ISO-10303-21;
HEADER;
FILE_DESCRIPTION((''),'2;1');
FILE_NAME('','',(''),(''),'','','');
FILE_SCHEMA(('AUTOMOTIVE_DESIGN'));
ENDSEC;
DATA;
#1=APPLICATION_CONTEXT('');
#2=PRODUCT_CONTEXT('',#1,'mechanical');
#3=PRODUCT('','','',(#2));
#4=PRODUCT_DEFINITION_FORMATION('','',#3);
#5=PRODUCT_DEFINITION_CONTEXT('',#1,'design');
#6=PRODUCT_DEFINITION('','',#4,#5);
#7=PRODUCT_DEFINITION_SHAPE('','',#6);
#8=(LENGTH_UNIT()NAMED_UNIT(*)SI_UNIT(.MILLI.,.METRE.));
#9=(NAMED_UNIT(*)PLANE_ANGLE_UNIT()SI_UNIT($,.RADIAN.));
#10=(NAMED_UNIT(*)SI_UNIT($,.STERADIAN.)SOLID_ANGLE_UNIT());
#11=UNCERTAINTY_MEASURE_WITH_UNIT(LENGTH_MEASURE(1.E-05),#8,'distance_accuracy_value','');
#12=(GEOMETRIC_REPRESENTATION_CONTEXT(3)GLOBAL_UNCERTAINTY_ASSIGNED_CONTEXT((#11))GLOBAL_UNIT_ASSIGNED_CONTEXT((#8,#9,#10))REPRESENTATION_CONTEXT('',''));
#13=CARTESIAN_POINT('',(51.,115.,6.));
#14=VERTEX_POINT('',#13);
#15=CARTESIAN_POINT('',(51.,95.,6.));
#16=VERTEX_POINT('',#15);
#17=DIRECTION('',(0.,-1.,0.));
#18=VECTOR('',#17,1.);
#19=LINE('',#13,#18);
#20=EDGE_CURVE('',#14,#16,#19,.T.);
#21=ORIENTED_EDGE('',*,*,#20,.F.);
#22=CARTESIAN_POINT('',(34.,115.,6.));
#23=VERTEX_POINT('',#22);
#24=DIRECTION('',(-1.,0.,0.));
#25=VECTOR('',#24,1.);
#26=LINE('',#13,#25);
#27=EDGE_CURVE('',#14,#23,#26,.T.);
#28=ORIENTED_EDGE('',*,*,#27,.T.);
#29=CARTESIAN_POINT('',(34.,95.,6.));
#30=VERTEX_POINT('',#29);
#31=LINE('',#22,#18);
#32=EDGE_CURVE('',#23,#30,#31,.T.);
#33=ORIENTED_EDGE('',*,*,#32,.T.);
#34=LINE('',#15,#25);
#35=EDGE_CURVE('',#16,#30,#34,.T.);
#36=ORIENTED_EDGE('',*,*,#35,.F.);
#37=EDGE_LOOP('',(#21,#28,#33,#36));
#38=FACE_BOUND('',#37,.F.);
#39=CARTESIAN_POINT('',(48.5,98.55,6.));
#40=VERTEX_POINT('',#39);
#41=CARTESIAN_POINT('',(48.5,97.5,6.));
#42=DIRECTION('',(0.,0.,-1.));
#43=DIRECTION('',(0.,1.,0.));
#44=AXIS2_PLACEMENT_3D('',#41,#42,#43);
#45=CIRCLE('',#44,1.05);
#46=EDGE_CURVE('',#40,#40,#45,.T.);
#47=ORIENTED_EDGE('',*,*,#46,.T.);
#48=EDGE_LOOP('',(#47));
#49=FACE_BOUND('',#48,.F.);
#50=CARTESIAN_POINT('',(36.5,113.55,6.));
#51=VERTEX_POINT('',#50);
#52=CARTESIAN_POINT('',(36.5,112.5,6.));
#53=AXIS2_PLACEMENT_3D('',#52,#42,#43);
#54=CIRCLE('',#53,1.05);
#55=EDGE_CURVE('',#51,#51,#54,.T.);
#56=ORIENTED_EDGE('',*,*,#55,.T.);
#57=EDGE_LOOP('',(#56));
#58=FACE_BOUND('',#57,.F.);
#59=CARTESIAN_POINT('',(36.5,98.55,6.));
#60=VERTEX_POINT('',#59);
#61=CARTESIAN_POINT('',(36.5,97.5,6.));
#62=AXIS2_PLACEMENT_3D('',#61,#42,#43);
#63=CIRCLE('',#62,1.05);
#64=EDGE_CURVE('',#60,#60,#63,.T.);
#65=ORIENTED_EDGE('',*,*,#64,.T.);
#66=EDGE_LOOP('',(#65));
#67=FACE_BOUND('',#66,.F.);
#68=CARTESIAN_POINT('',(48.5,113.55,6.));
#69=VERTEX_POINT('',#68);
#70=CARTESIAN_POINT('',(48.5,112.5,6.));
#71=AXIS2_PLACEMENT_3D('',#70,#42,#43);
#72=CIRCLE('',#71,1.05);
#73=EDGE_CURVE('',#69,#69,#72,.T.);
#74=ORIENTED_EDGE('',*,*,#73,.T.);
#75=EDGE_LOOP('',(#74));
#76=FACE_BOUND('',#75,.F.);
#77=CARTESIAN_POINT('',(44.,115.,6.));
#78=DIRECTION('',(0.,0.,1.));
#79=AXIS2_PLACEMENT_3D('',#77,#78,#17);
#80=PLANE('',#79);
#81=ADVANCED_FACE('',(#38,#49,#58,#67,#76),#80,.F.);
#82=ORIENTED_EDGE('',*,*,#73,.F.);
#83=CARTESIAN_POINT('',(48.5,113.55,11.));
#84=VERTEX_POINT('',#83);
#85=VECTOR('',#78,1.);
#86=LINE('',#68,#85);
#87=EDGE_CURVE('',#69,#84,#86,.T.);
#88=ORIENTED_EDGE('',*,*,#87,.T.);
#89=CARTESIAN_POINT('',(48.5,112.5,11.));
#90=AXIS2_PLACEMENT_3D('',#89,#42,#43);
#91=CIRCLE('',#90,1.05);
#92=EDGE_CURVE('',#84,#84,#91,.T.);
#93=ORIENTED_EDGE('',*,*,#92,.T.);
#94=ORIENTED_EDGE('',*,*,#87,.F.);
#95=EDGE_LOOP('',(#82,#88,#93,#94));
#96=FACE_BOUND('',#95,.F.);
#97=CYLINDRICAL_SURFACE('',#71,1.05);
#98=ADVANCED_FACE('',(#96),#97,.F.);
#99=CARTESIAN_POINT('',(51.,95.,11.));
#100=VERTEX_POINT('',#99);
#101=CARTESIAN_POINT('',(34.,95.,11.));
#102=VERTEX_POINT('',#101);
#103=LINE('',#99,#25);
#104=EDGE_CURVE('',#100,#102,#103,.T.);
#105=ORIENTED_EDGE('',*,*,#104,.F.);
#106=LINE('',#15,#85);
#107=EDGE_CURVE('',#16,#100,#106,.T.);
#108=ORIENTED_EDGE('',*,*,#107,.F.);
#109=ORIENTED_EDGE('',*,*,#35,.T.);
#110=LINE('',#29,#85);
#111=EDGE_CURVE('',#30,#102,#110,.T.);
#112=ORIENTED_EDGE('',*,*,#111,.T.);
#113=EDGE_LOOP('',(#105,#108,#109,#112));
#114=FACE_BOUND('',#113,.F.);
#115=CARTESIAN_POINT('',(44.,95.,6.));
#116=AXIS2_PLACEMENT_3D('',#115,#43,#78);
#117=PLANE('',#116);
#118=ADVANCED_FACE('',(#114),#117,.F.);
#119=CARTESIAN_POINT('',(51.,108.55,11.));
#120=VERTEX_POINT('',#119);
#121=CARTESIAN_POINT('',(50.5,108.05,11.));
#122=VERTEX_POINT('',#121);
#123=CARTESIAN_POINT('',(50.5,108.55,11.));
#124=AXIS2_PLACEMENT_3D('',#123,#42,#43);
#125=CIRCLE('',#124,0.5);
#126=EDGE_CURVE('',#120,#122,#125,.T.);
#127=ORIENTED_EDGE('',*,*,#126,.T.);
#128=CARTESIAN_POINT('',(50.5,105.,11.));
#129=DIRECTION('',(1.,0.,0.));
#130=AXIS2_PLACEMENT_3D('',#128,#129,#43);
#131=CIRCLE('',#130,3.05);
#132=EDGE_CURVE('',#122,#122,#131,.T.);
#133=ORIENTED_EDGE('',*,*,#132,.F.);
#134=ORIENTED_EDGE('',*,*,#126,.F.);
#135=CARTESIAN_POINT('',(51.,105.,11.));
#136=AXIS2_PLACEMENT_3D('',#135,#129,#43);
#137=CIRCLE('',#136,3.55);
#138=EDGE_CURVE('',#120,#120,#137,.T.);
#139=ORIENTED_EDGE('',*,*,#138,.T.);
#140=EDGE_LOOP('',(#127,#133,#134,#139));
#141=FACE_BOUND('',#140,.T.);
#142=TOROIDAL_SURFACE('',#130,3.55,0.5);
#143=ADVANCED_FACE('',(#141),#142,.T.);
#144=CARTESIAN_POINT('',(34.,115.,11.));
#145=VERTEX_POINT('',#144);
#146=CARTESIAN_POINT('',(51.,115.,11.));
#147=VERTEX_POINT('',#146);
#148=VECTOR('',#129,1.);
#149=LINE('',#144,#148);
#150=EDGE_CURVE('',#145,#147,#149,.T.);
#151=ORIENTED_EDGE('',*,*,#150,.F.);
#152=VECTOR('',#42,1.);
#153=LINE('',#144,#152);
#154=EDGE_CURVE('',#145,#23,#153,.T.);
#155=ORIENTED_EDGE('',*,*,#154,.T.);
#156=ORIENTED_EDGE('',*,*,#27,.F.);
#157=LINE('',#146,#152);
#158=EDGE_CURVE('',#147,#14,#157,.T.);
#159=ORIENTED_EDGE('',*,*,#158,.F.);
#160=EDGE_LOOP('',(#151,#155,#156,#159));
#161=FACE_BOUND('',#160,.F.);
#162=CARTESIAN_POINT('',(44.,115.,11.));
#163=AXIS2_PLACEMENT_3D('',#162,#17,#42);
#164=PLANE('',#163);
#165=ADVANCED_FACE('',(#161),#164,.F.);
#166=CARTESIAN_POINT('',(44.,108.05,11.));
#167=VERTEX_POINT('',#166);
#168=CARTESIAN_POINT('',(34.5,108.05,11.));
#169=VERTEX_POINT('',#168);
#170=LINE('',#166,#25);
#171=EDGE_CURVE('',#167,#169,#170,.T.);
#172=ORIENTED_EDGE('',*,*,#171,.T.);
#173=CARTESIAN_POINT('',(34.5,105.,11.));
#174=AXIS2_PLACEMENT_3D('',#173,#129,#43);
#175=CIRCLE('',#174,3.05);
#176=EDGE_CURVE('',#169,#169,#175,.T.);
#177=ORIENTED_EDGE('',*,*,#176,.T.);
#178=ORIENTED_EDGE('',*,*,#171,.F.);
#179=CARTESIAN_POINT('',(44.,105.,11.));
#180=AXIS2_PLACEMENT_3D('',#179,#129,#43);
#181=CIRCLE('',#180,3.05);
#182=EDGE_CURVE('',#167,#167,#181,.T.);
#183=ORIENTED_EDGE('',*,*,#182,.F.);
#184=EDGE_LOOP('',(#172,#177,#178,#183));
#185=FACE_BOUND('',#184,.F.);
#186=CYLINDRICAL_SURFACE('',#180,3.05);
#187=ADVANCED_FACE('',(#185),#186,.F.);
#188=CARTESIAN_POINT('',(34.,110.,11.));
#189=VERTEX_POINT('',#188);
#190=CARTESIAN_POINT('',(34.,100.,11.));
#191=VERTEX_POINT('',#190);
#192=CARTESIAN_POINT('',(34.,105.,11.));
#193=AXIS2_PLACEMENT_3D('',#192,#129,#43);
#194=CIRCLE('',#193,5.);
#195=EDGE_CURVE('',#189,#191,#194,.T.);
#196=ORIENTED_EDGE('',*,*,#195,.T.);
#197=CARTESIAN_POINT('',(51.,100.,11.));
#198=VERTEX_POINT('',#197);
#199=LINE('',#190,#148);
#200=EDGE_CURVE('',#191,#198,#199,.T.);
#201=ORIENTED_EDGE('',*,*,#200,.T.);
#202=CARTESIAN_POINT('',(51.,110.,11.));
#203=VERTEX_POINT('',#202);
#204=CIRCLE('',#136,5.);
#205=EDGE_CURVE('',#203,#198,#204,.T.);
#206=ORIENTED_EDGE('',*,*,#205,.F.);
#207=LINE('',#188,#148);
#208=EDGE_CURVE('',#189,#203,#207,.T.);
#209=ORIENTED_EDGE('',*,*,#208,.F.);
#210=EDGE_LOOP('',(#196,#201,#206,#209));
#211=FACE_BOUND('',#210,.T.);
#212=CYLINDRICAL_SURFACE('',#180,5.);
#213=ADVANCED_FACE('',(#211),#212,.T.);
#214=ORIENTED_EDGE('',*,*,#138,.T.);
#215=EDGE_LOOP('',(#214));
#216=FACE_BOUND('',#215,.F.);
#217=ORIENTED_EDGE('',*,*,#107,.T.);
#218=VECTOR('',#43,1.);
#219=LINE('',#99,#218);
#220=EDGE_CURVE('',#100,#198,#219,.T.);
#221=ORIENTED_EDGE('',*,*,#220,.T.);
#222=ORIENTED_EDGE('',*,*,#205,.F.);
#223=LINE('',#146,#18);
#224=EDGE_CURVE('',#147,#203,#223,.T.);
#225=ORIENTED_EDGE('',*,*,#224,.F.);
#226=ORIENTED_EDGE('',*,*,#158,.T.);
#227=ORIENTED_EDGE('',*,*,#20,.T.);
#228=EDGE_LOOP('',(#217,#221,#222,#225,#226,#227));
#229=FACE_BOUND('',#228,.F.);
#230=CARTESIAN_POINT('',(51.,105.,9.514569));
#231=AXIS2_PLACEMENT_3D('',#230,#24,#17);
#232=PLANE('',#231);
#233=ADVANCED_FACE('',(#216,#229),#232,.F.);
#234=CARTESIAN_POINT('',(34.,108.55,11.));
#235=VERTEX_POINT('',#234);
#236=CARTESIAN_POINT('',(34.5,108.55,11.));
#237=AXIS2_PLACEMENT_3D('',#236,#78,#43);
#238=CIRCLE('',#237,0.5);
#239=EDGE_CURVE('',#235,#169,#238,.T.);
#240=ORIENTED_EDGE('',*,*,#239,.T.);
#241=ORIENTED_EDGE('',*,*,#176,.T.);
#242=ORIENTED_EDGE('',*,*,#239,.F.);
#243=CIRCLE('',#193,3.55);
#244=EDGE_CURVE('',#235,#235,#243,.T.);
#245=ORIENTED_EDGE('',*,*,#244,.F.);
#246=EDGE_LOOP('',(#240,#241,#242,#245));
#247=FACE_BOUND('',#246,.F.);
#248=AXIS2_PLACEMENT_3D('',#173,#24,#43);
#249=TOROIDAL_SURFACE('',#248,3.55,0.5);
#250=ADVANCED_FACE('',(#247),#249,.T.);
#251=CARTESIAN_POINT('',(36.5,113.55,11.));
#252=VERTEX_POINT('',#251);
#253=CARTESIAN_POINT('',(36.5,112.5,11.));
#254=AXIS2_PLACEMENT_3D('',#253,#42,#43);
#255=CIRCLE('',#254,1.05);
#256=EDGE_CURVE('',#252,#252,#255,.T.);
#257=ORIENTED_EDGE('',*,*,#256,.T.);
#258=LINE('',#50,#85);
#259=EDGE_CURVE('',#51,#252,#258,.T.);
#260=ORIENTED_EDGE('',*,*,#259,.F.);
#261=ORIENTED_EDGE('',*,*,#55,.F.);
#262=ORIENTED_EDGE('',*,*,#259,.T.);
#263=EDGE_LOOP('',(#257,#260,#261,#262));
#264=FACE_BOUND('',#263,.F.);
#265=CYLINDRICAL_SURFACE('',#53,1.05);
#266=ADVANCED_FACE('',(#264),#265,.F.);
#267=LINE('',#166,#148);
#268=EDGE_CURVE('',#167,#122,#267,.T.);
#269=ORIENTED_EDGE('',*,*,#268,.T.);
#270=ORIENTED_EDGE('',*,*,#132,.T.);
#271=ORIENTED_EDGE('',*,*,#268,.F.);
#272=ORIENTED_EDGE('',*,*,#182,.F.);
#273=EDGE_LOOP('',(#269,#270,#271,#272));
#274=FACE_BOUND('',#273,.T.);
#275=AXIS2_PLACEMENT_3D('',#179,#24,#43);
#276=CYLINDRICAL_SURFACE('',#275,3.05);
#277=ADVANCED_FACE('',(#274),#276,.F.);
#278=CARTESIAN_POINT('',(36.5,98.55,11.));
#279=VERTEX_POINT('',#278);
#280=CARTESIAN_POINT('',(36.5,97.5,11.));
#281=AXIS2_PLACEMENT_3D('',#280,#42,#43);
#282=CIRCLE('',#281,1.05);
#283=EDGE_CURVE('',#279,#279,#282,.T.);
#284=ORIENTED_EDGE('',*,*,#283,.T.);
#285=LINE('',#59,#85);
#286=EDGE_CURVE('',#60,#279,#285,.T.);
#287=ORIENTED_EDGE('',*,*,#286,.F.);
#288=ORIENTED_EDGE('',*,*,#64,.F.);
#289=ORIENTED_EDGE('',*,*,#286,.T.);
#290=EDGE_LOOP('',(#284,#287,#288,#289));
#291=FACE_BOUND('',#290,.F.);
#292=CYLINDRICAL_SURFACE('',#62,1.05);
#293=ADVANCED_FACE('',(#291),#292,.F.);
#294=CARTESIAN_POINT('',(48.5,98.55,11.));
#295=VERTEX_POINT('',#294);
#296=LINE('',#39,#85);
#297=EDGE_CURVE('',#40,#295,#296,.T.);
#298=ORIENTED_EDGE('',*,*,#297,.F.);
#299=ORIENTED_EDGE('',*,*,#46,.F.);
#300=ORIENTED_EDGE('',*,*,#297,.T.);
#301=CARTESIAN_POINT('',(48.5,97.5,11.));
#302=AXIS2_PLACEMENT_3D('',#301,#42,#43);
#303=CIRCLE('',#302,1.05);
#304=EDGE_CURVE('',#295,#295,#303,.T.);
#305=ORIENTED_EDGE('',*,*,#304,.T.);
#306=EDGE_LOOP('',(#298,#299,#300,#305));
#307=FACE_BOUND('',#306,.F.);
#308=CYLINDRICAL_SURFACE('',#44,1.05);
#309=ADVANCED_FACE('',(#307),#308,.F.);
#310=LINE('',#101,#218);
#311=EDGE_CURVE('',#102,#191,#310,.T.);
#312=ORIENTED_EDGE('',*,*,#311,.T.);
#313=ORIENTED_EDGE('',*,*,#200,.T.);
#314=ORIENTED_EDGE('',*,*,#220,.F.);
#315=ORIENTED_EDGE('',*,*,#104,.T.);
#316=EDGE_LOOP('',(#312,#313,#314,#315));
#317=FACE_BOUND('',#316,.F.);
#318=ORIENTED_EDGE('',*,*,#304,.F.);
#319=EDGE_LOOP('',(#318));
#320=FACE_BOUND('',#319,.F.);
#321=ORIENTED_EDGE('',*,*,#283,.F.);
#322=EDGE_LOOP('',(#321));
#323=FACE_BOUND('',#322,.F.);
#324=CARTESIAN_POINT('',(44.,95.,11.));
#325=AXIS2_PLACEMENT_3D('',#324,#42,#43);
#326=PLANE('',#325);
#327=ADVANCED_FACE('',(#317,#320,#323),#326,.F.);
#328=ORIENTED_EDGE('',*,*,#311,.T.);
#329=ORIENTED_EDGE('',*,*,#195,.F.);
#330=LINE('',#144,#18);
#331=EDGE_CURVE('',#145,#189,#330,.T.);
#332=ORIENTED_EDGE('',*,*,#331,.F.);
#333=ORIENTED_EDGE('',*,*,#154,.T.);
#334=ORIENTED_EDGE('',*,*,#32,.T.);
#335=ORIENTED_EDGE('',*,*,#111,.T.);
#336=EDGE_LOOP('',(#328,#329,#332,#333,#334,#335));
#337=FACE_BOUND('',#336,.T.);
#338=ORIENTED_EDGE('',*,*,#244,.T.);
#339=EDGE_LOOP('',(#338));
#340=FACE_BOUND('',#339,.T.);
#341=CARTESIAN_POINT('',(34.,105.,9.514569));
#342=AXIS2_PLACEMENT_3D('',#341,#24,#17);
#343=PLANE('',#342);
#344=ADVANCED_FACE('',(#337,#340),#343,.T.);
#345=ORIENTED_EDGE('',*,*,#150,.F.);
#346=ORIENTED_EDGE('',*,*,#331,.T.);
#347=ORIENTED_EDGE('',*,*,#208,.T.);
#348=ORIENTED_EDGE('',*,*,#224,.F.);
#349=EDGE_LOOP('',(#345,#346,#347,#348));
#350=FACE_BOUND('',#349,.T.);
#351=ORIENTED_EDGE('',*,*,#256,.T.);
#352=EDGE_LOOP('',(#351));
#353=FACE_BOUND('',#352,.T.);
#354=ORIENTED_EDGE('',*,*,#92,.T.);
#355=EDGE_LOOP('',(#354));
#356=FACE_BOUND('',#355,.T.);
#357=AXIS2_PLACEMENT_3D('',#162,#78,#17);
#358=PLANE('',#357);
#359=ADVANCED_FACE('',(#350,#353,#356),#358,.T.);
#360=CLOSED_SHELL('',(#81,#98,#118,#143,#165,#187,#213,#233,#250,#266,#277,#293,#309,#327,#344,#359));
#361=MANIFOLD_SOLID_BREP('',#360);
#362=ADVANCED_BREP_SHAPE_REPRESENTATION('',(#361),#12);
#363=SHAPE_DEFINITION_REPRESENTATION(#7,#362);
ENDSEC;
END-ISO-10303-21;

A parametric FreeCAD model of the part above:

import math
import FreeCAD as App
import Part
import Sketcher
from FreeCAD import Vector


def edges_at(feature, points):
    """Names of the edges that pass closest to the given points."""
    edges = feature.Shape.Edges
    near = lambda p: min(range(len(edges)), key=lambda i: edges[i].distToShape(Part.Vertex(*p))[0])
    return sorted({f"Edge{near(p) + 1}" for p in points})

doc = App.newDocument("Part")
body = doc.addObject("PartDesign::Body", "Body")

# Sketch on XZ plane
sketch1 = body.newObject("Sketcher::SketchObject", "Sketch")
sketch1.AttachmentSupport = (doc.getObject("XZ_Plane"), [""])
sketch1.MapMode = "FlatFace"
sketch1.addGeometry([
    Part.LineSegment(Vector(10, -5, 0), Vector(10, 0, 0)),  # 0
    Part.LineSegment(Vector(10, 0, 0), Vector(5, 0, 0)),  # 1
    Part.ArcOfCircle(Part.Circle(Vector(0, 0, 0), Vector(0, 0, 1), 5), math.radians(0), math.radians(180)),  # 2
    Part.LineSegment(Vector(-5, 0, 0), Vector(-10, 0, 0)),  # 3
    Part.LineSegment(Vector(-10, 0, 0), Vector(-10, -5, 0)),  # 4
    Part.LineSegment(Vector(-10, -5, 0), Vector(10, -5, 0)),  # 5
    Part.Circle(Vector(0, 0, 0), Vector(0, 0, 1), 3),  # 6
], False)
sketch1.addConstraint([
    Sketcher.Constraint("Coincident", 0, 2, 1, 1),
    Sketcher.Constraint("Coincident", 1, 2, 2, 1),
    Sketcher.Constraint("Coincident", 2, 2, 3, 1),
    Sketcher.Constraint("Coincident", 3, 2, 4, 1),
    Sketcher.Constraint("Coincident", 4, 2, 5, 1),
    Sketcher.Constraint("Coincident", 5, 2, 0, 1),
    Sketcher.Constraint("Vertical", 0),
    Sketcher.Constraint("Horizontal", 1),
    Sketcher.Constraint("Horizontal", 3),
    Sketcher.Constraint("Vertical", 4),
    Sketcher.Constraint("Horizontal", 5),
    Sketcher.Constraint("Coincident", 2, 3, -1, 1),
    Sketcher.Constraint("Coincident", 6, 3, -1, 1),
    Sketcher.Constraint("Symmetric", 0, 2, 3, 2, -1, 1),
    Sketcher.Constraint("PointOnObject", 0, 2, -1),
    Sketcher.Constraint("Equal", 3, 0),
    Sketcher.Constraint("Radius", 2, 5.0),
    Sketcher.Constraint("Diameter", 6, 6.1),
    Sketcher.Constraint("DistanceX", 1, 2, 1, 1, 5.0),
])
pad1 = body.newObject("PartDesign::Pad", "Pad")
pad1.Profile = sketch1
pad1.Type = "TwoLengths"
pad1.Length = 7
pad1.Length2 = 10

# Sketch on XY plane
sketch2 = body.newObject("Sketcher::SketchObject", "Sketch001")
sketch2.AttachmentSupport = (doc.getObject("XY_Plane"), [""])
sketch2.MapMode = "FlatFace"
sketch2.AttachmentOffset = App.Placement(Vector(0, 0, -5), App.Rotation())
sketch2.addGeometry([
    Part.Circle(Vector(-7.5, -4.5, 0), Vector(0, 0, 1), 1.1),
    Part.Circle(Vector(-7.5, 7.5, 0), Vector(0, 0, 1), 1.1),
    Part.Circle(Vector(7.5, 7.5, 0), Vector(0, 0, 1), 1.1),
    Part.Circle(Vector(7.5, -4.5, 0), Vector(0, 0, 1), 1.1),
], False)
sketch2.addConstraint([
    Sketcher.Constraint("Equal", 0, 1),
    Sketcher.Constraint("Equal", 1, 2),
    Sketcher.Constraint("Equal", 2, 3),
    Sketcher.Constraint("Symmetric", 1, 3, 2, 3, -2),
    Sketcher.Constraint("Symmetric", 0, 3, 3, 3, -2),
    Sketcher.Constraint("Vertical", 0, 3, 1, 3),
    Sketcher.Constraint("Diameter", 0, 2.1),
    Sketcher.Constraint("DistanceY", 0, 3, 1, 3, 12.0),
    Sketcher.Constraint("DistanceX", 1, 3, 2, 3, 15.0),
    Sketcher.Constraint("DistanceY", 0, 3, -1, 1, 4.5),
])
pocket1 = body.newObject("PartDesign::Pocket", "Pocket")
pocket1.Profile = sketch2
pocket1.Length = 5
pocket1.Reversed = True
doc.recompute()

fillet = body.newObject("PartDesign::Fillet", "Fillet")
fillet.Base = (pocket1, edges_at(pocket1, [(-3.05, 10, 0), (-3.05, -7, 0)]))
fillet.Radius = 0.5
body2 = doc.addObject("PartDesign::Body", "Body001")
doc.recompute()

body.Placement = App.Placement(Vector(44, 105, 11), App.Rotation(Vector(0, 0, 1), 90))
boolean = body2.newObject("PartDesign::Boolean", "Boolean")
boolean.Type = "Fuse"
boolean.addObjects([body])

doc.recompute()
